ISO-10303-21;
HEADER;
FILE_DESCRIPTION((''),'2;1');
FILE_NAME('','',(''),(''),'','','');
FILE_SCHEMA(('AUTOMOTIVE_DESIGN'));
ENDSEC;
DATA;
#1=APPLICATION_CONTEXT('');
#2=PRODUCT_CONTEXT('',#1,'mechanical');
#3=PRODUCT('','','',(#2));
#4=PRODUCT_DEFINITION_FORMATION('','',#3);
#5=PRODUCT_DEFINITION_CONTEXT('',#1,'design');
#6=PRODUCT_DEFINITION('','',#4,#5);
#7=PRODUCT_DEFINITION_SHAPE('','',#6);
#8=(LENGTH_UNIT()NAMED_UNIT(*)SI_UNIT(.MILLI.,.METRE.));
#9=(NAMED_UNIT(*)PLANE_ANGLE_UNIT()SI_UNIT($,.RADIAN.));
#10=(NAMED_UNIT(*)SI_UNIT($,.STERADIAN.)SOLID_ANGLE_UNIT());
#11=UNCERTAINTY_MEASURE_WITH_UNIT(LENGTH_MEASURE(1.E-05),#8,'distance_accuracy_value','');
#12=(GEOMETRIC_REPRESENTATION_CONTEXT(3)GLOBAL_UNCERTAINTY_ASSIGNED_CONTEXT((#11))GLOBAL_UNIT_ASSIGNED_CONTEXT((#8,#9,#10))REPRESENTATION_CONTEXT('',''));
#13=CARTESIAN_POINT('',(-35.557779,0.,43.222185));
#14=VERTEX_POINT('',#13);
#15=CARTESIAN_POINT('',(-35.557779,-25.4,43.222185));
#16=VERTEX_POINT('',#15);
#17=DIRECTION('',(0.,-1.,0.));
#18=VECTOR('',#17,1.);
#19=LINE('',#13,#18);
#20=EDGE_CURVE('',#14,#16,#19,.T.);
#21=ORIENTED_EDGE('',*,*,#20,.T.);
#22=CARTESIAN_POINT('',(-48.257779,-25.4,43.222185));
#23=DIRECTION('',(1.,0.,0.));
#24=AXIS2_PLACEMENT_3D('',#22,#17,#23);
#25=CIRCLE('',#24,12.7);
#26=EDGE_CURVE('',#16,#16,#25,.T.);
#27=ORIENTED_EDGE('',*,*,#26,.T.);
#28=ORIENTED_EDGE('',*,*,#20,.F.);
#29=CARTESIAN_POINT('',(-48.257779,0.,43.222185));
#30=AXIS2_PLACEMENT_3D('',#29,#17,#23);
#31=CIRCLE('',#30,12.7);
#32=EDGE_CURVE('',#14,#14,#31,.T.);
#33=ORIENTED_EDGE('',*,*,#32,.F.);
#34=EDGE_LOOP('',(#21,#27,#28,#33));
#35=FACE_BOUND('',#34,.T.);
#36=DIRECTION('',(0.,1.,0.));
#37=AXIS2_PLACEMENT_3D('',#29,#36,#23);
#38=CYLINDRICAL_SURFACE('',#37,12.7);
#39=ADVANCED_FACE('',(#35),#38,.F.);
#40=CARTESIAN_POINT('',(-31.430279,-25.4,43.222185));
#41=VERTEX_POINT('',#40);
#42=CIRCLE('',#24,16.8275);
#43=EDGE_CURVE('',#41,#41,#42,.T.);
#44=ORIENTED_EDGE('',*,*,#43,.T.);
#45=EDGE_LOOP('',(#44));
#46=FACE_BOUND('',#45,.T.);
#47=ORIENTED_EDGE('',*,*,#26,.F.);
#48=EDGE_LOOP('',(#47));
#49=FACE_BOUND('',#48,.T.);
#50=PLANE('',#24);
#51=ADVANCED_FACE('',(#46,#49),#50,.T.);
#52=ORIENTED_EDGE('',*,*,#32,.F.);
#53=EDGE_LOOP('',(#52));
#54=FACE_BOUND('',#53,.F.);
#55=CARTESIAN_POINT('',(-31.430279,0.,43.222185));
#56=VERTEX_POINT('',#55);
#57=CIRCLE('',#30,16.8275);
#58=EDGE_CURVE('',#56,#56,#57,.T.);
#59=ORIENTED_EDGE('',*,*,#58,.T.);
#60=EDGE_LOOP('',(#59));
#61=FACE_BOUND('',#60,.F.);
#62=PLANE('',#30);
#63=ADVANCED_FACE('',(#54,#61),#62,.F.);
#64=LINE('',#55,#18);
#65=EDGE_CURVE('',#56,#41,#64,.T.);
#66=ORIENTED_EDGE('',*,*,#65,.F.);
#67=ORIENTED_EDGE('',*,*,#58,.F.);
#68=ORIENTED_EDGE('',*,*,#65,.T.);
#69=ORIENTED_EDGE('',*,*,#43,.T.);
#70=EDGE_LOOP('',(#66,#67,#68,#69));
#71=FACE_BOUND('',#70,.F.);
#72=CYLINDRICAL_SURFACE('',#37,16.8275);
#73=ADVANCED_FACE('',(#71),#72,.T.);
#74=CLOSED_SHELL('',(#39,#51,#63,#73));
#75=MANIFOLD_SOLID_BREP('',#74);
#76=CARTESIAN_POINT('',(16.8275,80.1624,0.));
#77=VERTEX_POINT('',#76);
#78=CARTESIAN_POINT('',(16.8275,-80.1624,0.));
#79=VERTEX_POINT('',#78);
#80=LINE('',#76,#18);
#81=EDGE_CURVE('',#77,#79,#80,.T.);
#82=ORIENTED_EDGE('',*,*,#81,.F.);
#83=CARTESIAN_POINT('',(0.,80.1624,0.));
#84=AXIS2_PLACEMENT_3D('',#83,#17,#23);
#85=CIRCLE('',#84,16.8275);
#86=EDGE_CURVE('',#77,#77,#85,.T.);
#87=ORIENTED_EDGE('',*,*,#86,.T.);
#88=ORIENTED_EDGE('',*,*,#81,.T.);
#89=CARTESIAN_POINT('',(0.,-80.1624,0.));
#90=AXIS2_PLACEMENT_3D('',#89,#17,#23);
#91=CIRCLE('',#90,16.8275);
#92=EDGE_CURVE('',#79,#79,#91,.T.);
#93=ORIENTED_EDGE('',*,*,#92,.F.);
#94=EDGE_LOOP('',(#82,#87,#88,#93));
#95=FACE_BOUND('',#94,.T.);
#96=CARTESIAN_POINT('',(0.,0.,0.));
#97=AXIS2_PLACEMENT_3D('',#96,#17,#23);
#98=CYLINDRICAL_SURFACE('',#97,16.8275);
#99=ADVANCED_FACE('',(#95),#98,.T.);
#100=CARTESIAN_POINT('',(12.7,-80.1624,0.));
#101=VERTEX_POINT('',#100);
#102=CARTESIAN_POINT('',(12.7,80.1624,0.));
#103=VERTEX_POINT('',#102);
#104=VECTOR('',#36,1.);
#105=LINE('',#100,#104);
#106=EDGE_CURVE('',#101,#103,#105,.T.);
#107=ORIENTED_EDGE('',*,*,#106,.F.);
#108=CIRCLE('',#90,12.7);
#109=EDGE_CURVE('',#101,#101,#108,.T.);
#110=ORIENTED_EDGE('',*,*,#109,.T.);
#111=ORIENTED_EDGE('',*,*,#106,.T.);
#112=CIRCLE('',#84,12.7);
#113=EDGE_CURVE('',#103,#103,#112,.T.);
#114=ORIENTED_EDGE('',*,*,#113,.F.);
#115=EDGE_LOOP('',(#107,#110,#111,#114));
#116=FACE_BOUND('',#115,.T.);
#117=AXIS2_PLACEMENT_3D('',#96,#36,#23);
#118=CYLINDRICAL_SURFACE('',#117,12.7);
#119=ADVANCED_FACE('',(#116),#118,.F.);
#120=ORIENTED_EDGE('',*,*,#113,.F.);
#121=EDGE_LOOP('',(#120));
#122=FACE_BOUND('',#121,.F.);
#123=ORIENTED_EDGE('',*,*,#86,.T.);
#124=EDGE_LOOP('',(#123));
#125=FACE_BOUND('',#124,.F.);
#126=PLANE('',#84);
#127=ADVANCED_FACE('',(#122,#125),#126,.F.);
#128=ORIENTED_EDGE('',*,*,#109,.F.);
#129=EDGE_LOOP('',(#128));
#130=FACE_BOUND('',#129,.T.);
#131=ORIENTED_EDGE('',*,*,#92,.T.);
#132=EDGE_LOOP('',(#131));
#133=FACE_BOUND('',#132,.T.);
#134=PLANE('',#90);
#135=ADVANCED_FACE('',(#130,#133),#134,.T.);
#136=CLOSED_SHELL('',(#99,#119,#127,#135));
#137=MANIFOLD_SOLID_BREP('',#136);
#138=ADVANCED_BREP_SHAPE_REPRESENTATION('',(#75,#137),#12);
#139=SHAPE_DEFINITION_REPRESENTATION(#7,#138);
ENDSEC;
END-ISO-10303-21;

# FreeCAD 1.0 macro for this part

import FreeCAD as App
import Part
import Sketcher
Q = App.Units.Quantity

doc = App.newDocument("Part")
body = doc.addObject("PartDesign::Body", "Body")

# Sketch on XZ plane
sketch1 = body.newObject("Sketcher::SketchObject", "Sketch")
sketch1.AttachmentSupport = (doc.getObject("XZ_Plane"), [""])
sketch1.MapMode = "FlatFace"
sketch1.addGeometry([
    Part.Circle(App.Vector(0, 0, 0), App.Vector(0, 0, 1), 17),
    Part.Circle(App.Vector(0, 0, 0), App.Vector(0, 0, 1), 13),
], False)
sketch1.addConstraint([
    Sketcher.Constraint("Coincident", 0, 3, -1, 1),
    Sketcher.Constraint("Coincident", 1, 3, -1, 1),
    Sketcher.Constraint("Diameter", 1, Q("1 in")),
    Sketcher.Constraint("Diameter", 0, Q("1.325 in")),
])
pad1 = body.newObject("PartDesign::Pad", "Pad")
pad1.Profile = sketch1
pad1.Length = Q("6.312 in")
pad1.Midplane = True
body2 = doc.addObject("PartDesign::Body", "Body001")

# Sketch on XZ plane
sketch2 = body2.newObject("Sketcher::SketchObject", "Sketch001")
sketch2.AttachmentSupport = (doc.getObject("XZ_Plane001"), [""])
sketch2.MapMode = "FlatFace"
sketch2.addGeometry([
    Part.Circle(App.Vector(-48, 43, 0), App.Vector(0, 0, 1), 17),
    Part.Circle(App.Vector(-48, 43, 0), App.Vector(0, 0, 1), 13),
], False)
sketch2.addConstraint([
    Sketcher.Constraint("Coincident", 1, 3, 0, 3),
    Sketcher.Constraint("Diameter", 1, Q("1 in")),
    Sketcher.Constraint("Diameter", 0, Q("1.325 in")),
    Sketcher.Constraint("DistanceX", 0, 3, -1, 1, Q("48.257779 mm")),
    Sketcher.Constraint("DistanceY", -1, 1, 0, 3, Q("43.222185 mm")),
])
pad2 = body2.newObject("PartDesign::Pad", "Pad001")
pad2.Profile = sketch2
pad2.Length = Q("1 in")

doc.recompute()
